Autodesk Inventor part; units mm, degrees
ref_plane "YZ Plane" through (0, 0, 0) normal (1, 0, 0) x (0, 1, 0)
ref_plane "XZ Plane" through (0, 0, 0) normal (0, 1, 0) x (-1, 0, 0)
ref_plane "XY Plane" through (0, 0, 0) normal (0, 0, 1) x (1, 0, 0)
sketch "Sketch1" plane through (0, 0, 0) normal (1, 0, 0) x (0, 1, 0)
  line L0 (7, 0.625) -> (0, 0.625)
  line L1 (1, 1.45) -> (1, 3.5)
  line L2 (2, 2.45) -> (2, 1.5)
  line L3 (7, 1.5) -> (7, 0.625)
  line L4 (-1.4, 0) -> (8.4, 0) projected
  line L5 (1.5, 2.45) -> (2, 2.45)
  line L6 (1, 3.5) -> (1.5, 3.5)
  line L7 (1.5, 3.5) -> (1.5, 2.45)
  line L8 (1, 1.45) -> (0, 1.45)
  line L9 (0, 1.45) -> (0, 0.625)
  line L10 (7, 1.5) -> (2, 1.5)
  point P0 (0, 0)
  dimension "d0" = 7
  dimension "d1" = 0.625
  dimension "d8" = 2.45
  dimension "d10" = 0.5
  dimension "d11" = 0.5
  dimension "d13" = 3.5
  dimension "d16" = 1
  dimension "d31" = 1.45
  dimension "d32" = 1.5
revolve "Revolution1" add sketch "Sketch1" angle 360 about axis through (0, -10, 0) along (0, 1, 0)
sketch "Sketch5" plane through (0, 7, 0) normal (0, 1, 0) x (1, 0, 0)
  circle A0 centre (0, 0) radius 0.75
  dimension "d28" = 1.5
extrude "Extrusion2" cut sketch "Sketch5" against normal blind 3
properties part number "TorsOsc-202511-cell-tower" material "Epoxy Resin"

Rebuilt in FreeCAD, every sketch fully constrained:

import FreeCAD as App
import Part
import Sketcher
from FreeCAD import Vector

doc = App.newDocument("Part")
body = doc.addObject("PartDesign::Body", "Body")

# Sketch on YZ plane
sketch1 = body.newObject("Sketcher::SketchObject", "Sketch")
sketch1.AttachmentSupport = (doc.getObject("YZ_Plane"), [""])
sketch1.MapMode = "FlatFace"
sketch1.addGeometry([
    Part.LineSegment(Vector(0, 0.625, 0), Vector(7, 0.625, 0)),  # 0
    Part.LineSegment(Vector(7, 0.625, 0), Vector(7, 1.5, 0)),  # 1
    Part.LineSegment(Vector(7, 1.5, 0), Vector(2, 1.5, 0)),  # 2
    Part.LineSegment(Vector(2, 1.5, 0), Vector(2, 2.45, 0)),  # 3
    Part.LineSegment(Vector(2, 2.45, 0), Vector(1.5, 2.45, 0)),  # 4
    Part.LineSegment(Vector(1.5, 2.45, 0), Vector(1.5, 3.5, 0)),  # 5
    Part.LineSegment(Vector(1.5, 3.5, 0), Vector(1, 3.5, 0)),  # 6
    Part.LineSegment(Vector(1, 3.5, 0), Vector(1, 1.45, 0)),  # 7
    Part.LineSegment(Vector(1, 1.45, 0), Vector(0, 1.45, 0)),  # 8
    Part.LineSegment(Vector(0, 1.45, 0), Vector(0, 0.625, 0)),  # 9
], False)
sketch1.addConstraint([
    Sketcher.Constraint("Coincident", 0, 2, 1, 1),
    Sketcher.Constraint("Coincident", 1, 2, 2, 1),
    Sketcher.Constraint("Coincident", 2, 2, 3, 1),
    Sketcher.Constraint("Coincident", 3, 2, 4, 1),
    Sketcher.Constraint("Coincident", 4, 2, 5, 1),
    Sketcher.Constraint("Coincident", 5, 2, 6, 1),
    Sketcher.Constraint("Coincident", 6, 2, 7, 1),
    Sketcher.Constraint("Coincident", 7, 2, 8, 1),
    Sketcher.Constraint("Coincident", 8, 2, 9, 1),
    Sketcher.Constraint("Coincident", 9, 2, 0, 1),
    Sketcher.Constraint("Horizontal", 0),
    Sketcher.Constraint("Vertical", 1),
    Sketcher.Constraint("Horizontal", 2),
    Sketcher.Constraint("Vertical", 3),
    Sketcher.Constraint("Horizontal", 4),
    Sketcher.Constraint("Vertical", 5),
    Sketcher.Constraint("Horizontal", 6),
    Sketcher.Constraint("Vertical", 7),
    Sketcher.Constraint("Horizontal", 8),
    Sketcher.Constraint("Vertical", 9),
    Sketcher.Constraint("PointOnObject", 8, 2, -2),
    Sketcher.Constraint("Equal", 4, 6),
    Sketcher.Constraint("DistanceX", 0, 1, 0, 2, 7.0),
    Sketcher.Constraint("DistanceX", 8, 2, 8, 1, 1.0),
    Sketcher.Constraint("DistanceX", 4, 2, 4, 1, 0.5),
    Sketcher.Constraint("DistanceY", 7, 2, 4, 2, 1.0),
    Sketcher.Constraint("DistanceY", -1, 1, 1, 2, 1.5),
    Sketcher.Constraint("DistanceY", -1, 1, 5, 2, 3.5),
    Sketcher.Constraint("DistanceY", -1, 1, 3, 2, 2.45),
    Sketcher.Constraint("DistanceY", -1, 1, 0, 2, 0.625),
])
revolution = body.newObject("PartDesign::Revolution", "Revolution")
revolution.Profile = sketch1
revolution.ReferenceAxis = (sketch1, ["H_Axis"])
revolution.Angle = 360

# Sketch on XZ plane
sketch2 = body.newObject("Sketcher::SketchObject", "Sketch001")
sketch2.AttachmentSupport = (doc.getObject("XZ_Plane"), [""])
sketch2.MapMode = "FlatFace"
sketch2.AttachmentOffset = App.Placement(Vector(0, 0, -7), App.Rotation())
sketch2.addGeometry(Part.Circle(Vector(0, 0, 0), Vector(0, 0, 1), 0.75), False)
sketch2.addConstraint([
    Sketcher.Constraint("Coincident", 0, 3, -1, 1),
    Sketcher.Constraint("Diameter", 0, 1.5),
])
pocket1 = body.newObject("PartDesign::Pocket", "Pocket")
pocket1.Profile = sketch2
pocket1.Length = 3
pocket1.Reversed = True

doc.recompute()
